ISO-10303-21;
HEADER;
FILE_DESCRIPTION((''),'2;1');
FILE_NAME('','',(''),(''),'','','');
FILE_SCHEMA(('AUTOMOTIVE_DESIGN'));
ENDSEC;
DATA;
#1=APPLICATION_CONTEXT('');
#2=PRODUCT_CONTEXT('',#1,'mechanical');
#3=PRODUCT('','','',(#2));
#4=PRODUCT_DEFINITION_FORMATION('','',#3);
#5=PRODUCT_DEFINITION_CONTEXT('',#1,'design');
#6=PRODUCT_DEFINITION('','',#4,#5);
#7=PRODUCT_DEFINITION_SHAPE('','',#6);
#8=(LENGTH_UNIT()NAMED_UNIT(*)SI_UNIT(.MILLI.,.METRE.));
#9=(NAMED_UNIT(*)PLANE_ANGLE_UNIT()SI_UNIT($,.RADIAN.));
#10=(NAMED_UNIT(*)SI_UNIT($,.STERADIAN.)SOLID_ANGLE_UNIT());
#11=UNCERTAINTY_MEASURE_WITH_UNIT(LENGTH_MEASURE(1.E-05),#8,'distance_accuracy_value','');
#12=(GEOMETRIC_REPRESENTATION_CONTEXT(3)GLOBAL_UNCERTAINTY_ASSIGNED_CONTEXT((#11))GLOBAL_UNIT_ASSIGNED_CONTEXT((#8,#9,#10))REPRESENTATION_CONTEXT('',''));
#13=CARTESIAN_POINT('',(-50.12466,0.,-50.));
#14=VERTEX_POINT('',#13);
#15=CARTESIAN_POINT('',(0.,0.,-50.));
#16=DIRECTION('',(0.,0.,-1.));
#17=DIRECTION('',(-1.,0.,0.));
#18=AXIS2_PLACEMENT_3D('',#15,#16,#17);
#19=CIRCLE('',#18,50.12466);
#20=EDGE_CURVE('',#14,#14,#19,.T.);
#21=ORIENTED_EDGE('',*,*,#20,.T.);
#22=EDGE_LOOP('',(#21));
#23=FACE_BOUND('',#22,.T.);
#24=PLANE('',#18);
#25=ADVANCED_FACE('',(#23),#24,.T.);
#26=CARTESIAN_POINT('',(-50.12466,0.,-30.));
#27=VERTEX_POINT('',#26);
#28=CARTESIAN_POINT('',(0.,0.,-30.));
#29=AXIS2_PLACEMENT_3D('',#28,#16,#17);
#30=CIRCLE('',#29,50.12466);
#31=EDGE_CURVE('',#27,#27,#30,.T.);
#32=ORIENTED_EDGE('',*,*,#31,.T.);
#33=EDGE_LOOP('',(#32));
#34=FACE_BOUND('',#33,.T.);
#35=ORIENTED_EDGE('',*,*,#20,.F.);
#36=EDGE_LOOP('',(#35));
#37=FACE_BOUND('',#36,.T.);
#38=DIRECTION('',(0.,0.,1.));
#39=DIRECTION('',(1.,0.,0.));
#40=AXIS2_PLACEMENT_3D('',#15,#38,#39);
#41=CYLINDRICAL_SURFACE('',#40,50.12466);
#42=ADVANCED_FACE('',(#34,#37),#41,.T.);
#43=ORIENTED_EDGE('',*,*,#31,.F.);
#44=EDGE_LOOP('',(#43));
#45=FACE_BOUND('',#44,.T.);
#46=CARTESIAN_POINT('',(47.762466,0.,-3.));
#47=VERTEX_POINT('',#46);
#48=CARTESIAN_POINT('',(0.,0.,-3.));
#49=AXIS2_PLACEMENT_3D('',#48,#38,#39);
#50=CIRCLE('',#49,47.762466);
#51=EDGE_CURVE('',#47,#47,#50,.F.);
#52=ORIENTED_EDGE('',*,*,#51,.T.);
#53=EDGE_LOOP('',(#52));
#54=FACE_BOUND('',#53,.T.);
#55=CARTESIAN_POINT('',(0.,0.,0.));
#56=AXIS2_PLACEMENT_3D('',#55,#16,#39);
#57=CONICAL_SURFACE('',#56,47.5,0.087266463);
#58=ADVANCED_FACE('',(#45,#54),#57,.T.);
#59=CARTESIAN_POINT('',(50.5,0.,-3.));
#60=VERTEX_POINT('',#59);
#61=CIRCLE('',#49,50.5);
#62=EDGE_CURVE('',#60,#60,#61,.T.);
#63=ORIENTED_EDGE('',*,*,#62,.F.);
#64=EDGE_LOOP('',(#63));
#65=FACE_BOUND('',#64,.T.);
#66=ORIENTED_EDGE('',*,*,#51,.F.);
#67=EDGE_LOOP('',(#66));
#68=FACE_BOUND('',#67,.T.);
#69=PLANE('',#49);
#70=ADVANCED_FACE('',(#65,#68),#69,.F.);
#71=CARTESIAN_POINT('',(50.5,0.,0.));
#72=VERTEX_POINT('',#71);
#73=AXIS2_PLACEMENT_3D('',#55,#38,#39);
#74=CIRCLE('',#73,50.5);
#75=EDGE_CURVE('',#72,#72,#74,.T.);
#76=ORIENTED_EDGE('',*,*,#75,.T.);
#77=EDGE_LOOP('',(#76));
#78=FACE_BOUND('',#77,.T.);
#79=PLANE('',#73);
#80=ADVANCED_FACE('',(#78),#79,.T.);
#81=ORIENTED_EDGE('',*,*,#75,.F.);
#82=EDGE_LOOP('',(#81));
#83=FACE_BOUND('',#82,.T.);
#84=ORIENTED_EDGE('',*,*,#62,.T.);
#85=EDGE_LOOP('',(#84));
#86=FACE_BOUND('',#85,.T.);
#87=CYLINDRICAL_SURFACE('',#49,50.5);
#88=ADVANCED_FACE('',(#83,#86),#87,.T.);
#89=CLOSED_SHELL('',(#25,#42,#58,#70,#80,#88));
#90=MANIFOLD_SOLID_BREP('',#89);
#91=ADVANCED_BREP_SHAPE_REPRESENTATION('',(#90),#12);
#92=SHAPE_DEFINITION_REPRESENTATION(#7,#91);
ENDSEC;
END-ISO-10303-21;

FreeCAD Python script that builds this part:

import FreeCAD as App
import Part
import Sketcher


def faces_at(feature, points):
    """Names of the faces that lie closest to the given points."""
    faces = feature.Shape.Faces
    near = lambda p: min(range(len(faces)), key=lambda i: faces[i].distToShape(Part.Vertex(*p))[0])
    return sorted({f"Face{near(p) + 1}" for p in points})

doc = App.newDocument("Part")
params = doc.addObject("Spreadsheet::Sheet", "Params")
for row, (alias, value) in enumerate([
    ("sketch1_diameter", "95 mm"),
    ("pad1_length", "30 mm"),
    ("draft_angle", "5 deg"),
    ("sketch2_diameter", "101 mm"),
    ("pad2_length", "3 mm"),
    ("pad3_length", "20 mm"),
], start=1):
    params.set(f"A{row}", alias)
    params.set(f"B{row}", "=" + value)
    params.setAlias(f"B{row}", alias)

body = doc.addObject("PartDesign::Body", "Body")

# Sketch on XY plane
sketch1 = body.newObject("Sketcher::SketchObject", "Sketch")
sketch1.AttachmentSupport = (doc.getObject("XY_Plane"), [""])
sketch1.MapMode = "FlatFace"
sketch1.addGeometry(Part.Circle(App.Vector(0, 0, 0), App.Vector(0, 0, 1), 48), False)
sketch1.addConstraint([
    Sketcher.Constraint("Coincident", 0, 3, -1, 1),
    Sketcher.Constraint("Diameter", 0, 95.0),
])
sketch1.setExpression("Constraints[1]", "Params.sketch1_diameter")
pad1 = body.newObject("PartDesign::Pad", "Pad")
pad1.Profile = sketch1
pad1.setExpression("Length", "Params.pad1_length")
pad1.Reversed = True
doc.recompute()

draft = body.newObject("PartDesign::Draft", "Draft")
draft.Base = (pad1, faces_at(pad1, [(-47.5, 0, -15)]))
draft.NeutralPlane = (doc.getObject("XY_Plane"), [""])
draft.setExpression("Angle", "Params.draft_angle")
draft.Reversed = False

# Sketch on XY plane
sketch2 = body.newObject("Sketcher::SketchObject", "Sketch001")
sketch2.AttachmentSupport = (doc.getObject("XY_Plane"), [""])
sketch2.MapMode = "FlatFace"
sketch2.addGeometry(Part.Circle(App.Vector(0, 0, 0), App.Vector(0, 0, 1), 50), False)
sketch2.addConstraint([
    Sketcher.Constraint("Coincident", 0, 3, -1, 1),
    Sketcher.Constraint("Diameter", 0, 101.0),
])
sketch2.setExpression("Constraints[1]", "Params.sketch2_diameter")
pad2 = body.newObject("PartDesign::Pad", "Pad001")
pad2.Profile = sketch2
pad2.setExpression("Length", "Params.pad2_length")
pad2.Reversed = True

# Sketch on XY plane
sketch3 = body.newObject("Sketcher::SketchObject", "Sketch002")
sketch3.AttachmentSupport = (doc.getObject("XY_Plane"), [""])
sketch3.MapMode = "FlatFace"
sketch3.AttachmentOffset = App.Placement(App.Vector(0, 0, -30), App.Rotation())
sketch3.addGeometry(Part.Circle(App.Vector(0, 0, 0), App.Vector(0, 0, 1), 50), False)
sketch3.addConstraint([
    Sketcher.Constraint("Coincident", 0, 3, -1, 1),
    Sketcher.Constraint("Diameter", 0, 100.24932),
])
pad3 = body.newObject("PartDesign::Pad", "Pad002")
pad3.Profile = sketch3
pad3.setExpression("Length", "Params.pad3_length")
pad3.Reversed = True

doc.recompute()
